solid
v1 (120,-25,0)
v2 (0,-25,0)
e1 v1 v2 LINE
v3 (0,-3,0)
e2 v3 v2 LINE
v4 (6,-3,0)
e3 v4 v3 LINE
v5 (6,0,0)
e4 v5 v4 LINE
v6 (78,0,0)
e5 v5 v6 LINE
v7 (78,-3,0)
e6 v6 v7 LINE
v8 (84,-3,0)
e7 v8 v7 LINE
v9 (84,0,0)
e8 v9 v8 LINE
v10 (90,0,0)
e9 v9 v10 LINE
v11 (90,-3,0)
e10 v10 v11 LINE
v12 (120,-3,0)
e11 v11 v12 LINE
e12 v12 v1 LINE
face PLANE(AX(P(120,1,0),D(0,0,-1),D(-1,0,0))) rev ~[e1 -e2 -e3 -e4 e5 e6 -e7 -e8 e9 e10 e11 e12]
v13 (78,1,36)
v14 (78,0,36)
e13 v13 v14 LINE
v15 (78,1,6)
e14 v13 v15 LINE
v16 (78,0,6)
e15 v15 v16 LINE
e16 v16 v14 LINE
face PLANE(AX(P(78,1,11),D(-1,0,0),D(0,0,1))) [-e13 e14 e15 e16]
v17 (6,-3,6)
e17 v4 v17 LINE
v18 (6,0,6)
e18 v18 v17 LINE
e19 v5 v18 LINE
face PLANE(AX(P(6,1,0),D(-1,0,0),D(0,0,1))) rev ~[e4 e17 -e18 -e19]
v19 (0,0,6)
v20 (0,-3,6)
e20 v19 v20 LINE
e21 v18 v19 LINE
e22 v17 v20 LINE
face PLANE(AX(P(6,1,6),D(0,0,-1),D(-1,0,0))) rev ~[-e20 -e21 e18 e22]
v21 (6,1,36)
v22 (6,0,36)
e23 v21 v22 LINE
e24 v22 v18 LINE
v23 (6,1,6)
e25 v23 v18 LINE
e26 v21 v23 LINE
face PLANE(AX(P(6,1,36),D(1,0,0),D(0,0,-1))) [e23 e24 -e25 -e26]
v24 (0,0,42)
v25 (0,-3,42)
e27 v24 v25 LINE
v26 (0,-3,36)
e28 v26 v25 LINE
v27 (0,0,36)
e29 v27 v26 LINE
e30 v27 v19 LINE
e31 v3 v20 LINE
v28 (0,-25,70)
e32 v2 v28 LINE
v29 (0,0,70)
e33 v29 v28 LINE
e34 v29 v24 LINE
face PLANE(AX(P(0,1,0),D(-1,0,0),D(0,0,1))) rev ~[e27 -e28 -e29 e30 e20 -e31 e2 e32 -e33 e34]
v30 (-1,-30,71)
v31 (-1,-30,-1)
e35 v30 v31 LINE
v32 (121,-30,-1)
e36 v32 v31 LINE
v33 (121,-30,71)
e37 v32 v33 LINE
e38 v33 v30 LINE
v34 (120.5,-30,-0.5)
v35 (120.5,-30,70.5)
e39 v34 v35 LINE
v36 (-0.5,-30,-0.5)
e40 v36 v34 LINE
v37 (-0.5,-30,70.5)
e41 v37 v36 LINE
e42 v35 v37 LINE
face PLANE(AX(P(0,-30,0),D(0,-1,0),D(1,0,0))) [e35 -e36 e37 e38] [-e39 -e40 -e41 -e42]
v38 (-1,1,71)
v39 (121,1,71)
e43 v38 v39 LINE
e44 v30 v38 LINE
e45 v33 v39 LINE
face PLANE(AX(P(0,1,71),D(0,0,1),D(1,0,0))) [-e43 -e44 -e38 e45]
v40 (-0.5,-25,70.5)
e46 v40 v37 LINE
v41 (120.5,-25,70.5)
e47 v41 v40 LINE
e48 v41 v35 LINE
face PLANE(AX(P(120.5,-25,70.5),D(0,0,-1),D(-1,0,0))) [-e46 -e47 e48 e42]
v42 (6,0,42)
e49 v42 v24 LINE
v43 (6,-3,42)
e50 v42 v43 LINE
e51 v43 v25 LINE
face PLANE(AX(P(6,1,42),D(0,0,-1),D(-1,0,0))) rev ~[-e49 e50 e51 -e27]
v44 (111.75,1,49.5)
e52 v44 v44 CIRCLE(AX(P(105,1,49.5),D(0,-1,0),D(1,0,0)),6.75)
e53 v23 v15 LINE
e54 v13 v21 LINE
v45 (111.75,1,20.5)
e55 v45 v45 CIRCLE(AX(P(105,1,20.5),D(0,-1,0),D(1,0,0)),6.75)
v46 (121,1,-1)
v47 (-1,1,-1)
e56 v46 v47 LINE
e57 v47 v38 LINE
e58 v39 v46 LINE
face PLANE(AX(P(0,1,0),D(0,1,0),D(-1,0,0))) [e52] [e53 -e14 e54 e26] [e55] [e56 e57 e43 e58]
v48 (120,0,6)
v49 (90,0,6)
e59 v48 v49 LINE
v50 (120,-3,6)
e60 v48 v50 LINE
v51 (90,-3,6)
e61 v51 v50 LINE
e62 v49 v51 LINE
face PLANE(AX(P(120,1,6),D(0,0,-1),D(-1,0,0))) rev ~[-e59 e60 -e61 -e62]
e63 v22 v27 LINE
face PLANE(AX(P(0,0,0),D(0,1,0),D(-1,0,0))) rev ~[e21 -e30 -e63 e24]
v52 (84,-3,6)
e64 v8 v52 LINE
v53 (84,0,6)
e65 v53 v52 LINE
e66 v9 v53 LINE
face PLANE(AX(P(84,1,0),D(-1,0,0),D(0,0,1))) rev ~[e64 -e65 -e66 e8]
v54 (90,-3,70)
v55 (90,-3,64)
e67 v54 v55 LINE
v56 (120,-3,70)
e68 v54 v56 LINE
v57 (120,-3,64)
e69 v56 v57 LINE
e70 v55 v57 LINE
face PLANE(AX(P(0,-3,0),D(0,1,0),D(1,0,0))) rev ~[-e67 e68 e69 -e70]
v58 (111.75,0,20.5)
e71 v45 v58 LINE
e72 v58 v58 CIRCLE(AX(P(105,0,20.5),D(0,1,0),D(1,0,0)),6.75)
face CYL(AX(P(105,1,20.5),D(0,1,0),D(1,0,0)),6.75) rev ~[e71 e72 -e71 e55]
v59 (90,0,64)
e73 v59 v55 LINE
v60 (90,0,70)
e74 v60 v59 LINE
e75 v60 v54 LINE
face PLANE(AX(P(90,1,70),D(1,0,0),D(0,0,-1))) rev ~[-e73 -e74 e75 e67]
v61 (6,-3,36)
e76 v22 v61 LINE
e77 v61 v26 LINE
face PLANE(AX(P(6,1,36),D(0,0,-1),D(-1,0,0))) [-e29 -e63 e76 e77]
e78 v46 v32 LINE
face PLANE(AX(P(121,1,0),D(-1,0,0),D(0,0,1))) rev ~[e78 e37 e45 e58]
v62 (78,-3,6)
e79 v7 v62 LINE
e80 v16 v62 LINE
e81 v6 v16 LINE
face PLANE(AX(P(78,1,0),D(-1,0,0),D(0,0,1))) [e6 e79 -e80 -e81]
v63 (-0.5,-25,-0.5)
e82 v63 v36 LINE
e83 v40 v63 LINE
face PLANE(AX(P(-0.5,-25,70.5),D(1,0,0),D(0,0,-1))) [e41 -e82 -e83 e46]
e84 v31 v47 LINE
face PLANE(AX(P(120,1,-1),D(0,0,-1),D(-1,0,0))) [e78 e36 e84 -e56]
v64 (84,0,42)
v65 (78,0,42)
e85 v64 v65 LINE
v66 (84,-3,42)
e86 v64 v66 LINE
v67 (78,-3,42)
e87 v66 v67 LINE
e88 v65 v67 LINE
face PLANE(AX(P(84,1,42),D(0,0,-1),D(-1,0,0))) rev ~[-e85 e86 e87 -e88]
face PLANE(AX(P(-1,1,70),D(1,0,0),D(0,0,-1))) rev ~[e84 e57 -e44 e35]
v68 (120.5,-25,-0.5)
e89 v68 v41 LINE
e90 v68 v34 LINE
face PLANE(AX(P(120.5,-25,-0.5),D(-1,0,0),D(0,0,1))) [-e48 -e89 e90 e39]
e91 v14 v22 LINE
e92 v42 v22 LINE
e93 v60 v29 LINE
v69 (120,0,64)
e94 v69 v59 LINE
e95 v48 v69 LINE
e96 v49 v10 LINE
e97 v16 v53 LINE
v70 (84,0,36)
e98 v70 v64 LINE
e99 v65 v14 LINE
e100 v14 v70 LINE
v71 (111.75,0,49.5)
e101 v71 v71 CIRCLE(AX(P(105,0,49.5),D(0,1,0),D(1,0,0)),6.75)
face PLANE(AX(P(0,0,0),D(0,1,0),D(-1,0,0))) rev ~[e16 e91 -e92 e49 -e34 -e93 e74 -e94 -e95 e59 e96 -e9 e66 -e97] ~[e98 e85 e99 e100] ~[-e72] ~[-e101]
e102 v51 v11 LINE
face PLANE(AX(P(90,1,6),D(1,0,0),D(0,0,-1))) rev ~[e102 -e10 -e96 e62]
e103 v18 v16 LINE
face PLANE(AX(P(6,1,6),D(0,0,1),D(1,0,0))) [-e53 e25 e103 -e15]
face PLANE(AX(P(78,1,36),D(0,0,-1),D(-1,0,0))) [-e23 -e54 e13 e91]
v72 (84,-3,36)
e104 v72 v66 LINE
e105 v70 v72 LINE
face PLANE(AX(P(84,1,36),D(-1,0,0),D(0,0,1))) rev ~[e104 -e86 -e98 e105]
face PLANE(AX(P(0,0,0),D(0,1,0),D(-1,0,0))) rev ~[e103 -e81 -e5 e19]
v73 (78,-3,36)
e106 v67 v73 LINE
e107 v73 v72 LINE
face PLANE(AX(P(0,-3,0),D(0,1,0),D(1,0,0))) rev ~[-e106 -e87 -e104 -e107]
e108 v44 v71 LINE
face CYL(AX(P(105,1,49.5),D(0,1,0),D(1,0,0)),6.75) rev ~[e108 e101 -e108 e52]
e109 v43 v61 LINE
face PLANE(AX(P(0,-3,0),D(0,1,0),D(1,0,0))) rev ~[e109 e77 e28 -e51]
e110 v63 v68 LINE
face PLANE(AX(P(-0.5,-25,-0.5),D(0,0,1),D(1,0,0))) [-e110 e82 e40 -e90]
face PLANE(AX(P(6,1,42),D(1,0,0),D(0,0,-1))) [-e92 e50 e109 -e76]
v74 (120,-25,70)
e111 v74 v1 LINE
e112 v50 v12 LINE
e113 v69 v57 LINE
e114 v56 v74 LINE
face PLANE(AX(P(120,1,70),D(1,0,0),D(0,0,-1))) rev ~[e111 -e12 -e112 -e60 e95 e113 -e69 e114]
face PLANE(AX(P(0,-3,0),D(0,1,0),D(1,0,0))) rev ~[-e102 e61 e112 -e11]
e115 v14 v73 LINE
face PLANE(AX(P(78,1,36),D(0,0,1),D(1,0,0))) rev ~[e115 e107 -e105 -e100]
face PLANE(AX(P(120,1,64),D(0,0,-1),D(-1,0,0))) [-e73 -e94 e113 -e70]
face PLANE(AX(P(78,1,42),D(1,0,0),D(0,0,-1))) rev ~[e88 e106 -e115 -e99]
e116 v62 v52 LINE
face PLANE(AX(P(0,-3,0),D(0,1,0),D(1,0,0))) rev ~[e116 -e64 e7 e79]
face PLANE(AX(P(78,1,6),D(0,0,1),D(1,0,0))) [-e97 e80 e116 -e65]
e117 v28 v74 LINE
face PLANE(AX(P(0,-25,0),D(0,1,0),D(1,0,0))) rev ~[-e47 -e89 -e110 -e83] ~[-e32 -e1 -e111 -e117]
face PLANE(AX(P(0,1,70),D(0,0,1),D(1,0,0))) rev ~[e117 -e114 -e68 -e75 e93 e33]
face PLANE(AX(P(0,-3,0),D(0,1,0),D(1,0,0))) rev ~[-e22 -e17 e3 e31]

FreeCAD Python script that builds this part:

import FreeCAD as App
import Part
import Sketcher

V = App.Vector
Q = App.Units.Quantity


def add_polygon(sketch, points):
    """Adds a closed chain of lines whose ends are joined by coincident constraints."""
    first, n = sketch.GeometryCount, len(points)
    for a, b in zip(points, points[1:] + points[:1]):
        sketch.addGeometry(Part.LineSegment(App.Vector(*a, 0), App.Vector(*b, 0)), False)
    for i in range(n):
        sketch.addConstraint(Sketcher.Constraint("Coincident", first + i, 2, first + (i + 1) % n, 1))

doc = App.newDocument("Part")
body = doc.addObject("PartDesign::Body", "Body")

# Sketch on XZ plane
sketch1 = doc.addObject("Sketcher::SketchObject", "Sketch")
body.addObject(sketch1)
sketch1.AttachmentSupport = (doc.XZ_Plane, [""])
sketch1.MapMode = "FlatFace"
add_polygon(sketch1, [(120, 0), (0, 0), (0, 70), (120, 70)])  # lines 0-3
sketch1.addConstraint(Sketcher.Constraint("Horizontal", 0))
sketch1.addConstraint(Sketcher.Constraint("Vertical", 1))
sketch1.addConstraint(Sketcher.Constraint("Horizontal", 2))
sketch1.addConstraint(Sketcher.Constraint("Vertical", 3))
sketch1.addConstraint(Sketcher.Constraint("Coincident", 0, 2, -1, 1))
sketch1.addConstraint(Sketcher.Constraint("DistanceX", 0, 2, 0, 1, Q("120 mm")))
sketch1.addConstraint(Sketcher.Constraint("DistanceY", 1, 1, 1, 2, Q("70 mm")))
pad1 = doc.addObject("PartDesign::Pad", "Pad")
body.addObject(pad1)
pad1.Profile = sketch1
pad1.Length = 1
pad1.Reversed = True

# Sketch on XZ plane
sketch2 = doc.addObject("Sketcher::SketchObject", "Sketch001")
body.addObject(sketch2)
sketch2.AttachmentSupport = (doc.XZ_Plane, [""])
sketch2.MapMode = "FlatFace"
sketch2.AttachmentOffset = App.Placement(V(0, 0, -1), App.Rotation())
sketch2.addGeometry(Part.Circle(V(105, 50, 0), V(0, 0, 1), 7), False)
sketch2.addGeometry(Part.Circle(V(105, 20, 0), V(0, 0, 1), 7), False)
sketch2.addConstraint(Sketcher.Constraint("Equal", 0, 1))
sketch2.addConstraint(Sketcher.Constraint("Vertical", 0, 3, 1, 3))
sketch2.addConstraint(Sketcher.Constraint("Diameter", 0, Q("13.5 mm")))
sketch2.addConstraint(Sketcher.Constraint("DistanceY", -1, 1, 1, 3, Q("20.5 mm")))
sketch2.addConstraint(Sketcher.Constraint("DistanceX", -1, 1, 0, 3, Q("105 mm")))
sketch2.addConstraint(Sketcher.Constraint("DistanceY", 1, 3, 0, 3, Q("29 mm")))
pocket1 = doc.addObject("PartDesign::Pocket", "Pocket")
body.addObject(pocket1)
pocket1.Profile = sketch2
pocket1.Length = 1
pocket1.Reversed = True

# Sketch on XZ plane
sketch3 = doc.addObject("Sketcher::SketchObject", "Sketch002")
body.addObject(sketch3)
sketch3.AttachmentSupport = (doc.XZ_Plane, [""])
sketch3.MapMode = "FlatFace"
sketch3.AttachmentOffset = App.Placement(V(0, 0, -1), App.Rotation())
add_polygon(sketch3, [(120, 70), (120, 64), (90, 64), (90, 70)])  # lines 0-3
add_polygon(sketch3, [(120, 6), (120, 0), (90, 0), (90, 6)])  # lines 4-7
add_polygon(sketch3, [(0, 36), (0, 42), (6, 42), (6, 36)])  # lines 8-11
add_polygon(sketch3, [(84, 6), (84, 0), (78, 0), (78, 6)])  # lines 12-15
add_polygon(sketch3, [(78, 36), (78, 42), (84, 42), (84, 36)])  # lines 16-19
add_polygon(sketch3, [(0, 0), (0, 6), (6, 6), (6, 0)])  # lines 20-23
sketch3.addConstraint(Sketcher.Constraint("Vertical", 0))
sketch3.addConstraint(Sketcher.Constraint("Horizontal", 1))
sketch3.addConstraint(Sketcher.Constraint("Vertical", 2))
sketch3.addConstraint(Sketcher.Constraint("Horizontal", 3))
sketch3.addConstraint(Sketcher.Constraint("Vertical", 4))
sketch3.addConstraint(Sketcher.Constraint("Horizontal", 5))
sketch3.addConstraint(Sketcher.Constraint("Vertical", 6))
sketch3.addConstraint(Sketcher.Constraint("Horizontal", 7))
sketch3.addConstraint(Sketcher.Constraint("Vertical", 8))
sketch3.addConstraint(Sketcher.Constraint("Horizontal", 9))
sketch3.addConstraint(Sketcher.Constraint("Vertical", 10))
sketch3.addConstraint(Sketcher.Constraint("Horizontal", 11))
sketch3.addConstraint(Sketcher.Constraint("Vertical", 12))
sketch3.addConstraint(Sketcher.Constraint("Horizontal", 13))
sketch3.addConstraint(Sketcher.Constraint("Vertical", 14))
sketch3.addConstraint(Sketcher.Constraint("Horizontal", 15))
sketch3.addConstraint(Sketcher.Constraint("Vertical", 16))
sketch3.addConstraint(Sketcher.Constraint("Horizontal", 17))
sketch3.addConstraint(Sketcher.Constraint("Vertical", 18))
sketch3.addConstraint(Sketcher.Constraint("Horizontal", 19))
sketch3.addConstraint(Sketcher.Constraint("Vertical", 20))
sketch3.addConstraint(Sketcher.Constraint("Horizontal", 21))
sketch3.addConstraint(Sketcher.Constraint("Vertical", 22))
sketch3.addConstraint(Sketcher.Constraint("Horizontal", 23))
sketch3.addConstraint(Sketcher.Constraint("Coincident", 23, 2, -1, 1))
sketch3.addConstraint(Sketcher.Constraint("PointOnObject", 4, 2, -1))
sketch3.addConstraint(Sketcher.Constraint("PointOnObject", 8, 2, -2))
sketch3.addConstraint(Sketcher.Constraint("PointOnObject", 12, 2, -1))
sketch3.addConstraint(Sketcher.Constraint("Horizontal", 7, 2, 14, 2))
sketch3.addConstraint(Sketcher.Constraint("Horizontal", 9, 2, 16, 2))
sketch3.addConstraint(Sketcher.Constraint("Horizontal", 11, 2, 18, 2))
sketch3.addConstraint(Sketcher.Constraint("Horizontal", 15, 2, 20, 2))
sketch3.addConstraint(Sketcher.Constraint("Vertical", 3, 2, 4, 2))
sketch3.addConstraint(Sketcher.Constraint("Vertical", 2, 2, 5, 2))
sketch3.addConstraint(Sketcher.Constraint("Vertical", 14, 2, 16, 2))
sketch3.addConstraint(Sketcher.Constraint("Vertical", 15, 2, 17, 2))
sketch3.addConstraint(Sketcher.Constraint("Vertical", 10, 2, 21, 2))
sketch3.addConstraint(Sketcher.Constraint("Equal", 11, 13))
sketch3.addConstraint(Sketcher.Constraint("Equal", 23, 0))
sketch3.addConstraint(Sketcher.Constraint("Equal", 2, 4))
sketch3.addConstraint(Sketcher.Constraint("Equal", 6, 8))
sketch3.addConstraint(Sketcher.Constraint("DistanceX", 1, 2, 1, 1, Q("30 mm")))
sketch3.addConstraint(Sketcher.Constraint("DistanceX", 9, 1, 9, 2, Q("6 mm")))
sketch3.addConstraint(Sketcher.Constraint("DistanceY", -1, 1, 8, 2, Q("42 mm")))
sketch3.addConstraint(Sketcher.Constraint("DistanceX", -1, 1, 12, 2, Q("84 mm")))
sketch3.addConstraint(Sketcher.Constraint("DistanceX", 9, 2, 1, 2, Q("84 mm")))
sketch3.addConstraint(Sketcher.Constraint("DistanceY", -1, 1, 0, 2, Q("64 mm")))
pad2 = doc.addObject("PartDesign::Pad", "Pad001")
body.addObject(pad2)
pad2.Profile = sketch3
pad2.Length = 4

# Sketch on XZ plane
sketch4 = doc.addObject("Sketcher::SketchObject", "Sketch003")
body.addObject(sketch4)
sketch4.AttachmentSupport = (doc.XZ_Plane, [""])
sketch4.MapMode = "FlatFace"
sketch4.AttachmentOffset = App.Placement(V(0, 0, -1), App.Rotation())
add_polygon(sketch4, [(6, 36), (78, 36), (78, 6), (6, 6)])  # lines 0-3
sketch4.addConstraint(Sketcher.Constraint("Horizontal", 0))
sketch4.addConstraint(Sketcher.Constraint("Vertical", 1))
sketch4.addConstraint(Sketcher.Constraint("Horizontal", 2))
sketch4.addConstraint(Sketcher.Constraint("Vertical", 3))
sketch4.addConstraint(Sketcher.Constraint("DistanceY", 1, 2, 1, 1, Q("30 mm")))
sketch4.addConstraint(Sketcher.Constraint("DistanceY", -1, 1, 1, 2, Q("6 mm")))
sketch4.addConstraint(Sketcher.Constraint("DistanceX", -1, 1, 2, 2, Q("6 mm")))
sketch4.addConstraint(Sketcher.Constraint("DistanceX", 0, 1, 0, 2, Q("72 mm")))
pocket2 = doc.addObject("PartDesign::Pocket", "Pocket001")
body.addObject(pocket2)
pocket2.Profile = sketch4
pocket2.Length = 4
pocket2.Reversed = True

# Sketch on XZ plane
sketch5 = doc.addObject("Sketcher::SketchObject", "Sketch004")
body.addObject(sketch5)
sketch5.AttachmentSupport = (doc.XZ_Plane, [""])
sketch5.MapMode = "FlatFace"
sketch5.AttachmentOffset = App.Placement(V(0, 0, -1), App.Rotation())
add_polygon(sketch5, [(-1, 71), (121, 71), (121, -1), (-1, -1)])  # lines 0-3
add_polygon(sketch5, [(0, 70), (0, 0), (120, 0), (120, 70)])  # lines 4-7
sketch5.addConstraint(Sketcher.Constraint("Horizontal", 0))
sketch5.addConstraint(Sketcher.Constraint("Vertical", 1))
sketch5.addConstraint(Sketcher.Constraint("Horizontal", 2))
sketch5.addConstraint(Sketcher.Constraint("Vertical", 3))
sketch5.addConstraint(Sketcher.Constraint("Vertical", 4))
sketch5.addConstraint(Sketcher.Constraint("Horizontal", 5))
sketch5.addConstraint(Sketcher.Constraint("Vertical", 6))
sketch5.addConstraint(Sketcher.Constraint("Horizontal", 7))
sketch5.addConstraint(Sketcher.Constraint("Coincident", 4, 2, -1, 1))
sketch5.addConstraint(Sketcher.Constraint("DistanceY", 1, 2, -1, 1, Q("1 mm")))
sketch5.addConstraint(Sketcher.Constraint("DistanceX", 2, 2, -1, 1, Q("1 mm")))
sketch5.addConstraint(Sketcher.Constraint("DistanceX", 5, 2, 1, 2, Q("1 mm")))
sketch5.addConstraint(Sketcher.Constraint("DistanceY", 6, 2, 0, 2, Q("1 mm")))
sketch5.addConstraint(Sketcher.Constraint("DistanceX", 0, 1, 0, 2, Q("122 mm")))
sketch5.addConstraint(Sketcher.Constraint("DistanceY", 1, 2, 1, 1, Q("72 mm")))
pad3 = doc.addObject("PartDesign::Pad", "Pad002")
body.addObject(pad3)
pad3.Profile = sketch5
pad3.Length = 26

# Sketch on XZ plane
sketch6 = doc.addObject("Sketcher::SketchObject", "Sketch005")
body.addObject(sketch6)
sketch6.AttachmentSupport = (doc.XZ_Plane, [""])
sketch6.MapMode = "FlatFace"
sketch6.AttachmentOffset = App.Placement(V(0, 0, 25), App.Rotation())
add_polygon(sketch6, [(-1, 71), (-1, -1), (121, -1), (121, 71)])  # lines 0-3
add_polygon(sketch6, [(0, 70), (120, 70), (120, 0), (0, 0)])  # lines 4-7
sketch6.addConstraint(Sketcher.Constraint("Vertical", 0))
sketch6.addConstraint(Sketcher.Constraint("Horizontal", 1))
sketch6.addConstraint(Sketcher.Constraint("Vertical", 2))
sketch6.addConstraint(Sketcher.Constraint("Horizontal", 3))
sketch6.addConstraint(Sketcher.Constraint("Horizontal", 4))
sketch6.addConstraint(Sketcher.Constraint("Vertical", 5))
sketch6.addConstraint(Sketcher.Constraint("Horizontal", 6))
sketch6.addConstraint(Sketcher.Constraint("Vertical", 7))
sketch6.addConstraint(Sketcher.Constraint("DistanceX", 1, 1, 1, 2, Q("122 mm")))
sketch6.addConstraint(Sketcher.Constraint("DistanceX", 4, 1, 4, 2, Q("121 mm")))
sketch6.addConstraint(Sketcher.Constraint("DistanceY", 0, 2, 0, 1, Q("72 mm")))
sketch6.addConstraint(Sketcher.Constraint("DistanceY", 5, 2, 5, 1, Q("71 mm")))
sketch6.addConstraint(Sketcher.Constraint("DistanceX", 0, 2, -1, 1, Q("1 mm")))
sketch6.addConstraint(Sketcher.Constraint("DistanceY", 0, 2, -1, 1, Q("1 mm")))
sketch6.addConstraint(Sketcher.Constraint("DistanceX", -1, 1, 4, 2, Q("120.5 mm")))
sketch6.addConstraint(Sketcher.Constraint("DistanceY", -1, 1, 4, 2, Q("70.5 mm")))
pad4 = doc.addObject("PartDesign::Pad", "Pad003")
body.addObject(pad4)
pad4.Profile = sketch6
pad4.Length = 5

doc.recompute()
